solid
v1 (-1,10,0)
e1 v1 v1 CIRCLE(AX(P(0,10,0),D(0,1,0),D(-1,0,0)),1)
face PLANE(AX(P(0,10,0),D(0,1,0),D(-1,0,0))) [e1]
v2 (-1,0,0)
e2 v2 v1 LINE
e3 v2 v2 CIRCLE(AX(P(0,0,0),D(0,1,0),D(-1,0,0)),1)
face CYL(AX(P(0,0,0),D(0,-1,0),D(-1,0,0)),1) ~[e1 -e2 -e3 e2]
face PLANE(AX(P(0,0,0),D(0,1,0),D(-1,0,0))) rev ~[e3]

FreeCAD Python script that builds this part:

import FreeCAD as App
import Part
import Sketcher
from FreeCAD import Vector
Q = App.Units.Quantity

doc = App.newDocument("Part")
params = doc.addObject("Spreadsheet::Sheet", "Params")
for row, (alias, value) in enumerate([
    ("sketch1_diameter", "2 mm"),
    ("pad1_length", "10 mm"),
], start=1):
    params.set(f"A{row}", alias)
    params.set(f"B{row}", "=" + value)
    params.setAlias(f"B{row}", alias)

body = doc.addObject("PartDesign::Body", "Body")

# Sketch on XZ plane
sketch1 = doc.addObject("Sketcher::SketchObject", "Sketch")
body.addObject(sketch1)
sketch1.AttachmentSupport = (doc.XZ_Plane, [""])
sketch1.MapMode = "FlatFace"
sketch1.addGeometry(Part.Circle(Vector(0, 0, 0), Vector(0, 0, 1), 1), False)
sketch1.addConstraint([
    Sketcher.Constraint("Coincident", 0, 3, -1, 1),
    Sketcher.Constraint("Diameter", 0, Q("2 mm")),
])
sketch1.setExpression("Constraints[1]", "Params.sketch1_diameter")
pad1 = doc.addObject("PartDesign::Pad", "Pad")
body.addObject(pad1)
pad1.Profile = sketch1
pad1.setExpression("Length", "Params.pad1_length")
pad1.Reversed = True

doc.recompute()
